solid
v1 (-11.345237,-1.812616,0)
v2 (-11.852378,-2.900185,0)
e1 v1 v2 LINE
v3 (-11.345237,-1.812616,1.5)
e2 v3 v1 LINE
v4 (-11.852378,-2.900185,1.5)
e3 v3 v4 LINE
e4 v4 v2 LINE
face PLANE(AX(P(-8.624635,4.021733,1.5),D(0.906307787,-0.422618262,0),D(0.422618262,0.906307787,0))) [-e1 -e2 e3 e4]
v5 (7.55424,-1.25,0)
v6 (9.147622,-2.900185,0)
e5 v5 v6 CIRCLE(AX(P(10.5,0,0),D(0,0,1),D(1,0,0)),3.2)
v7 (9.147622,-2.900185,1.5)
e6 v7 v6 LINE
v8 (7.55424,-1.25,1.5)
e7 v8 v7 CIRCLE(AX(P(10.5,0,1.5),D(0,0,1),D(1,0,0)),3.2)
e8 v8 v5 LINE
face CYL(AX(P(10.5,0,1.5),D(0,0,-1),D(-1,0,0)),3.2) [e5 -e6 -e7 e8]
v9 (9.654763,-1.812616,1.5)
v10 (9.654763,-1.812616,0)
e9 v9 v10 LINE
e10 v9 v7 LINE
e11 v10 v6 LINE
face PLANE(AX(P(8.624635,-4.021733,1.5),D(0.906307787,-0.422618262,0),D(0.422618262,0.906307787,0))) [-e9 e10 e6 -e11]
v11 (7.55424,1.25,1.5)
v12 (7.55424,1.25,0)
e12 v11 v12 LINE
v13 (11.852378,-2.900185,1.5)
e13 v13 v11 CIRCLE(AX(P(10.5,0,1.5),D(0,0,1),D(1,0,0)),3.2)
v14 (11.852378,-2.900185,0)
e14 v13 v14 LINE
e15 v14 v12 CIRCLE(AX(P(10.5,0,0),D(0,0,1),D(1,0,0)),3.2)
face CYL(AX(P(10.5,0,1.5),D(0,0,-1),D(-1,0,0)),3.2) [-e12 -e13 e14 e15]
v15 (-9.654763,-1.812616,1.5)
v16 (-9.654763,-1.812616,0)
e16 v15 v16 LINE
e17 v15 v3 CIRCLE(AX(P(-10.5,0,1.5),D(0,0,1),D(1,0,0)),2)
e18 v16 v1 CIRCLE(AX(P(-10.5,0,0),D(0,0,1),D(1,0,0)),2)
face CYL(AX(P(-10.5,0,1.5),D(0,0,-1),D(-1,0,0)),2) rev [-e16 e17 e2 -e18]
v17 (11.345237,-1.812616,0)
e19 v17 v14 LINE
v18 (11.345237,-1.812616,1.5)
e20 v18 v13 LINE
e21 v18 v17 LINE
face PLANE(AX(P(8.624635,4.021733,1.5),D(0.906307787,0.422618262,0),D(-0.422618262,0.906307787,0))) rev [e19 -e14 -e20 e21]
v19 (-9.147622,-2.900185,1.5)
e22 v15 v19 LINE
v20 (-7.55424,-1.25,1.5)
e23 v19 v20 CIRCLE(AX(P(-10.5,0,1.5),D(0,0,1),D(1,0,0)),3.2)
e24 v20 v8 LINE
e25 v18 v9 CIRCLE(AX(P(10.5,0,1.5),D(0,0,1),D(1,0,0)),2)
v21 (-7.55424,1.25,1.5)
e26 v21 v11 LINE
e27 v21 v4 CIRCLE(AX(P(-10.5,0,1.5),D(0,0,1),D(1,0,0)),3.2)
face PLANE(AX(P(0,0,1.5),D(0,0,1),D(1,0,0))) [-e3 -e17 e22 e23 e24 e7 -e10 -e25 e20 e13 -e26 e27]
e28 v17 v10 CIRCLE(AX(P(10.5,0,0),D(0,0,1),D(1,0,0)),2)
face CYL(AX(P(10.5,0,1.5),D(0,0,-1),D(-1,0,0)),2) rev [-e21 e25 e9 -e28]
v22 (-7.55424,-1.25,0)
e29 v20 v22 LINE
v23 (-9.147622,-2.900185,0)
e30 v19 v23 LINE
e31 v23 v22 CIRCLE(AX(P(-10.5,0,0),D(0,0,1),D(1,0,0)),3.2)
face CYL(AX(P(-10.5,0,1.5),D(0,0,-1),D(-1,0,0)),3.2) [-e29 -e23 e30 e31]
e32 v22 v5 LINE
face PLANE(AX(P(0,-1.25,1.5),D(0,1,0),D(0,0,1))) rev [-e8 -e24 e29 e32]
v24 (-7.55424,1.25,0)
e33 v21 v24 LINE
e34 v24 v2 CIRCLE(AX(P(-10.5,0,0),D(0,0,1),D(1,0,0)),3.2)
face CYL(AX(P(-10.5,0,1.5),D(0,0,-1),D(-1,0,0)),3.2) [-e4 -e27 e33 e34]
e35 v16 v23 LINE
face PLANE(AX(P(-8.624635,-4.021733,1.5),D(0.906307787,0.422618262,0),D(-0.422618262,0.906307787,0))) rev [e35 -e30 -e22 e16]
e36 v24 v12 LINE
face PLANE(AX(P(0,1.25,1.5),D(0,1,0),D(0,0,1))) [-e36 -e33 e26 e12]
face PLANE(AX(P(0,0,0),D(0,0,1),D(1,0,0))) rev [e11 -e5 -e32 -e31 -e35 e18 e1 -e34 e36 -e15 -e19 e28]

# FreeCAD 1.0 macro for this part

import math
import FreeCAD as App
import Part
import Sketcher
Q = App.Units.Quantity

doc = App.newDocument("Part")
body = doc.addObject("PartDesign::Body", "Body")

# Sketch on XY plane
sketch1 = doc.addObject("Sketcher::SketchObject", "Sketch")
body.addObject(sketch1)
sketch1.AttachmentSupport = (doc.XY_Plane, [""])
sketch1.MapMode = "FlatFace"
sketch1.addGeometry([
    Part.LineSegment(App.Vector(-11.9, -2.9, 0), App.Vector(-11.3, -1.8, 0)),  # 0
    Part.ArcOfCircle(Part.Circle(App.Vector(-10.5, 0, 0), App.Vector(0, 0, 1), 2), math.radians(39), math.radians(245)),  # 1
    Part.ArcOfCircle(Part.Circle(App.Vector(-10.5, 0, 0), App.Vector(0, 0, 1), 2), math.radians(0), math.radians(39)),  # 2
    Part.ArcOfCircle(Part.Circle(App.Vector(-10.5, 0, 0), App.Vector(0, 0, 1), 2), math.radians(-39), math.radians(0)),  # 3
    Part.ArcOfCircle(Part.Circle(App.Vector(-10.5, 0, 0), App.Vector(0, 0, 1), 2), math.radians(-65), math.radians(-39)),  # 4
    Part.LineSegment(App.Vector(-9.7, -1.8, 0), App.Vector(-9.1, -2.9, 0)),  # 5
    Part.ArcOfCircle(Part.Circle(App.Vector(-10.5, 0, 0), App.Vector(0, 0, 1), 3.2), math.radians(-65), math.radians(-23)),  # 6
    Part.LineSegment(App.Vector(-7.6, -1.2, 0), App.Vector(7.6, -1.2, 0)),  # 7
    Part.ArcOfCircle(Part.Circle(App.Vector(10.5, 0, 0), App.Vector(0, 0, 1), 3.2), math.radians(-157), math.radians(-115)),  # 8
    Part.LineSegment(App.Vector(9.1, -2.9, 0), App.Vector(9.7, -1.8, 0)),  # 9
    Part.ArcOfCircle(Part.Circle(App.Vector(10.5, 0, 0), App.Vector(0, 0, 1), 2), math.radians(-141), math.radians(-115)),  # 10
    Part.ArcOfCircle(Part.Circle(App.Vector(10.5, 0, 0), App.Vector(0, 0, 1), 2), math.radians(141), math.radians(219)),  # 11
    Part.ArcOfCircle(Part.Circle(App.Vector(10.5, 0, 0), App.Vector(0, 0, 1), 2), math.radians(0), math.radians(141)),  # 12
    Part.ArcOfCircle(Part.Circle(App.Vector(10.5, 0, 0), App.Vector(0, 0, 1), 2), math.radians(-65), math.radians(0)),  # 13
    Part.LineSegment(App.Vector(11.3, -1.8, 0), App.Vector(11.9, -2.9, 0)),  # 14
    Part.ArcOfCircle(Part.Circle(App.Vector(10.5, 0, 0), App.Vector(0, 0, 1), 3.2), math.radians(-65), math.radians(0)),  # 15
    Part.ArcOfCircle(Part.Circle(App.Vector(10.5, 0, 0), App.Vector(0, 0, 1), 3.2), math.radians(0), math.radians(157)),  # 16
    Part.LineSegment(App.Vector(7.6, 1.2, 0), App.Vector(-7.6, 1.2, 0)),  # 17
    Part.ArcOfCircle(Part.Circle(App.Vector(-10.5, 0, 0), App.Vector(0, 0, 1), 3.2), math.radians(23), math.radians(245)),  # 18
], False)
sketch1.addConstraint([
    Sketcher.Constraint("Coincident", 0, 2, 1, 2),
    Sketcher.Constraint("Tangent", 1, 1, 2, 2),
    Sketcher.Constraint("Tangent", 2, 1, 3, 2),
    Sketcher.Constraint("Tangent", 3, 1, 4, 2),
    Sketcher.Constraint("Coincident", 4, 1, 5, 1),
    Sketcher.Constraint("Coincident", 5, 2, 6, 1),
    Sketcher.Constraint("Coincident", 6, 2, 7, 1),
    Sketcher.Constraint("Coincident", 7, 2, 8, 1),
    Sketcher.Constraint("Coincident", 8, 2, 9, 1),
    Sketcher.Constraint("Coincident", 9, 2, 10, 2),
    Sketcher.Constraint("Tangent", 10, 1, 11, 2),
    Sketcher.Constraint("Tangent", 11, 1, 12, 2),
    Sketcher.Constraint("Tangent", 12, 1, 13, 2),
    Sketcher.Constraint("Coincident", 13, 1, 14, 1),
    Sketcher.Constraint("Coincident", 14, 2, 15, 1),
    Sketcher.Constraint("Tangent", 15, 2, 16, 1),
    Sketcher.Constraint("Coincident", 16, 2, 17, 1),
    Sketcher.Constraint("Coincident", 17, 2, 18, 1),
    Sketcher.Constraint("Coincident", 18, 2, 0, 1),
    Sketcher.Constraint("Horizontal", 7),
    Sketcher.Constraint("Horizontal", 17),
    Sketcher.Constraint("Coincident", 3, 3, 1, 3),
    Sketcher.Constraint("Coincident", 6, 3, 1, 3),
    Sketcher.Constraint("Coincident", 10, 3, 8, 3),
    Sketcher.Constraint("Coincident", 12, 3, 8, 3),
    Sketcher.Constraint("Coincident", 15, 3, 8, 3),
    Sketcher.Constraint("Coincident", 18, 3, 1, 3),
    Sketcher.Constraint("Equal", 3, 4),
    Sketcher.Constraint("Equal", 6, 8),
    Sketcher.Constraint("Equal", 4, 10),
    Sketcher.Constraint("Equal", 12, 13),
    Sketcher.Constraint("Equal", 8, 15),
    Sketcher.Constraint("Equal", 15, 16),
    Sketcher.Constraint("Equal", 16, 18),
    Sketcher.Constraint("Symmetric", 1, 3, 8, 3, -1, 1),
    Sketcher.Constraint("Symmetric", 5, 2, 8, 2, -2),
    Sketcher.Constraint("PointOnObject", 2, 1, -1),
    Sketcher.Constraint("PointOnObject", 12, 1, -1),
    Sketcher.Constraint("PointOnObject", 15, 2, -1),
    Sketcher.Constraint("Parallel", 0, 9),
    Sketcher.Constraint("Parallel", 5, 14),
    Sketcher.Constraint("Horizontal", 0, 2, 4, 1),
    Sketcher.Constraint("Horizontal", 3, 1, 6, 2),
    Sketcher.Constraint("Horizontal", 4, 1, 9, 2),
    Sketcher.Constraint("Horizontal", 7, 2, 10, 1),
    Sketcher.Constraint("Horizontal", 1, 1, 11, 1),
    Sketcher.Constraint("Horizontal", 9, 2, 13, 1),
    Sketcher.Constraint("Horizontal", 11, 1, 16, 2),
    Sketcher.Constraint("Vertical", 1, 1, 3, 1),
    Sketcher.Constraint("Radius", 1, 2.0),
    Sketcher.Constraint("Radius", 6, 3.2),
    Sketcher.Constraint("Angle", 0, Q("65 deg")),
    Sketcher.Constraint("DistanceX", 4, 3, 8, 3, 21.0),
    Sketcher.Constraint("DistanceY", 6, 2, 1, 1, 2.5),
    Sketcher.Constraint("DistanceX", 5, 2, -1, 1, 9.147622),
])
pad1 = doc.addObject("PartDesign::Pad", "Pad")
body.addObject(pad1)
pad1.Profile = sketch1
pad1.Length = 1.5

doc.recompute()
